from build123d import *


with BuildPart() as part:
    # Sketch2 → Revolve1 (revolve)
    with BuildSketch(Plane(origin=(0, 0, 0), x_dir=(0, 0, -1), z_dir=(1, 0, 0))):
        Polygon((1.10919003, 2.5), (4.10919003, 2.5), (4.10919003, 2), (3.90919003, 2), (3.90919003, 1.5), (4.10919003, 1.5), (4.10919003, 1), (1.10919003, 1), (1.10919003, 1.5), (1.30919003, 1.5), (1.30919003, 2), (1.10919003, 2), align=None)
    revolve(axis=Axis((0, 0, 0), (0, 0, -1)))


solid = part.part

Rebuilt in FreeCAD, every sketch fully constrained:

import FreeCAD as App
import Part
import Sketcher
Q = App.Units.Quantity


def add_polygon(sketch, points):
    """Adds a closed chain of lines whose ends are joined by coincident constraints."""
    first, n = sketch.GeometryCount, len(points)
    for a, b in zip(points, points[1:] + points[:1]):
        sketch.addGeometry(Part.LineSegment(App.Vector(*a, 0), App.Vector(*b, 0)), False)
    for i in range(n):
        sketch.addConstraint(Sketcher.Constraint("Coincident", first + i, 2, first + (i + 1) % n, 1))

doc = App.newDocument("Part")
body = doc.addObject("PartDesign::Body", "Body")

# Sketch on YZ plane
sketch1 = doc.addObject("Sketcher::SketchObject", "Sketch")
body.addObject(sketch1)
sketch1.AttachmentSupport = (doc.YZ_Plane, [""])
sketch1.MapMode = "FlatFace"
add_polygon(sketch1, [(2.5, -4.11), (2.5, -1.11), (2, -1.11), (2, -1.31), (1.5, -1.31), (1.5, -1.11), (1, -1.11), (1, -4.11), (1.5, -4.11), (1.5, -3.91), (2, -3.91), (2, -4.11)])  # lines 0-11
sketch1.addConstraint([
    Sketcher.Constraint("Vertical", 0),
    Sketcher.Constraint("Horizontal", 1),
    Sketcher.Constraint("Vertical", 2),
    Sketcher.Constraint("Horizontal", 3),
    Sketcher.Constraint("Vertical", 4),
    Sketcher.Constraint("Horizontal", 5),
    Sketcher.Constraint("Vertical", 6),
    Sketcher.Constraint("Horizontal", 7),
    Sketcher.Constraint("Vertical", 8),
    Sketcher.Constraint("Horizontal", 9),
    Sketcher.Constraint("Vertical", 10),
    Sketcher.Constraint("Horizontal", 11),
    Sketcher.Constraint("Horizontal", 1, 2, 4, 2),
    Sketcher.Constraint("Horizontal", 7, 2, 10, 2),
    Sketcher.Constraint("Vertical", 4, 2, 7, 2),
    Sketcher.Constraint("Vertical", 2, 2, 9, 2),
    Sketcher.Constraint("Equal", 1, 3),
    Sketcher.Constraint("Equal", 3, 5),
    Sketcher.Constraint("Equal", 4, 8),
    Sketcher.Constraint("DistanceY", 0, 1, 0, 2, Q("3 mm")),
    Sketcher.Constraint("DistanceX", 1, 2, 1, 1, Q("0.5 mm")),
    Sketcher.Constraint("DistanceY", 2, 2, 2, 1, Q("0.2 mm")),
    Sketcher.Constraint("DistanceX", -1, 1, 1, 2, Q("2 mm")),
    Sketcher.Constraint("DistanceY", 0, 2, -1, 1, Q("1.10919 mm")),
])
revolution = doc.addObject("PartDesign::Revolution", "Revolution")
body.addObject(revolution)
revolution.Profile = sketch1
revolution.ReferenceAxis = (sketch1, ["V_Axis"])
revolution.Angle = 360

doc.recompute()
